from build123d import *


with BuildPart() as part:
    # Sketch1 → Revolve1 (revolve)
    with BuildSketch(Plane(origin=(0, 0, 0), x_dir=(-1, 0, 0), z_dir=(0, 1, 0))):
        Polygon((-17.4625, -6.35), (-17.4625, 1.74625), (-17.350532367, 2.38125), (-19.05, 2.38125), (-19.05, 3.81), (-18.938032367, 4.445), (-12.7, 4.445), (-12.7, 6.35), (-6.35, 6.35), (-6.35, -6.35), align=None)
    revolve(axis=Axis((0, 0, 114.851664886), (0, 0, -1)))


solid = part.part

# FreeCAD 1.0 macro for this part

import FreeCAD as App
import Part
import Sketcher
from FreeCAD import Vector
Q = App.Units.Quantity


def add_polygon(sketch, points):
    """Adds a closed chain of lines whose ends are joined by coincident constraints."""
    first, n = sketch.GeometryCount, len(points)
    for a, b in zip(points, points[1:] + points[:1]):
        sketch.addGeometry(Part.LineSegment(App.Vector(*a, 0), App.Vector(*b, 0)), False)
    for i in range(n):
        sketch.addConstraint(Sketcher.Constraint("Coincident", first + i, 2, first + (i + 1) % n, 1))

doc = App.newDocument("Part")
body = doc.addObject("PartDesign::Body", "Body")

sketch1 = doc.addObject("Sketcher::SketchObject", "Sketch")
body.addObject(sketch1)
sketch1.AttachmentSupport = (doc.XZ_Plane, [""])
sketch1.MapMode = "FlatFace"
add_polygon(sketch1, [(17.4625, 1.74625), (17.4625, -6.35), (6.35, -6.35), (6.35, 6.35), (12.7, 6.35), (12.7, 4.445), (18.938032, 4.445), (19.05, 3.81), (19.05, 2.38125), (17.350532, 2.38125)])
sketch1.addConstraint(Sketcher.Constraint("Vertical", 0))
sketch1.addConstraint(Sketcher.Constraint("Horizontal", 1))
sketch1.addConstraint(Sketcher.Constraint("Vertical", 2))
sketch1.addConstraint(Sketcher.Constraint("Horizontal", 3))
sketch1.addConstraint(Sketcher.Constraint("Vertical", 4))
sketch1.addConstraint(Sketcher.Constraint("Horizontal", 5))
sketch1.addConstraint(Sketcher.Constraint("Vertical", 7))
sketch1.addConstraint(Sketcher.Constraint("Horizontal", 8))
sketch1.addConstraint(Sketcher.Constraint("Parallel", 6, 9))
sketch1.addConstraint(Sketcher.Constraint("Equal", 6, 9))
sketch1.addConstraint(Sketcher.Constraint("DistanceY", 2, 1, 2, 2, Q("0.5 in")))
sketch1.addConstraint(Sketcher.Constraint("Angle", 6, Q("-80 deg")))
sketch1.addConstraint(Sketcher.Constraint("DistanceX", 3, 1, 3, 2, Q("0.25 in")))
sketch1.addConstraint(Sketcher.Constraint("DistanceX", -1, 1, 3, 2, Q("0.5 in")))
sketch1.addConstraint(Sketcher.Constraint("DistanceY", 6, 2, 3, 2, Q("0.1 in")))
sketch1.addConstraint(Sketcher.Constraint("DistanceX", 2, 2, 6, 2, Q("0.5 in")))
sketch1.addConstraint(Sketcher.Constraint("DistanceX", 1, 2, 1, 1, Q("0.4375 in")))
sketch1.addConstraint(Sketcher.Constraint("DistanceY", 4, 2, 4, 1, Q("0.075 in")))
sketch1.addConstraint(Sketcher.Constraint("DistanceY", 0, 2, -1, 1, Q("0.25 in")))
sketch1.addConstraint(Sketcher.Constraint("DistanceY", -1, 1, 7, 2, Q("0.09375 in")))
revolution = doc.addObject("PartDesign::Revolution", "Revolution")
body.addObject(revolution)
revolution.Profile = sketch1
revolution.ReferenceAxis = (sketch1, ["V_Axis"])
revolution.Angle = 360

doc.recompute()
